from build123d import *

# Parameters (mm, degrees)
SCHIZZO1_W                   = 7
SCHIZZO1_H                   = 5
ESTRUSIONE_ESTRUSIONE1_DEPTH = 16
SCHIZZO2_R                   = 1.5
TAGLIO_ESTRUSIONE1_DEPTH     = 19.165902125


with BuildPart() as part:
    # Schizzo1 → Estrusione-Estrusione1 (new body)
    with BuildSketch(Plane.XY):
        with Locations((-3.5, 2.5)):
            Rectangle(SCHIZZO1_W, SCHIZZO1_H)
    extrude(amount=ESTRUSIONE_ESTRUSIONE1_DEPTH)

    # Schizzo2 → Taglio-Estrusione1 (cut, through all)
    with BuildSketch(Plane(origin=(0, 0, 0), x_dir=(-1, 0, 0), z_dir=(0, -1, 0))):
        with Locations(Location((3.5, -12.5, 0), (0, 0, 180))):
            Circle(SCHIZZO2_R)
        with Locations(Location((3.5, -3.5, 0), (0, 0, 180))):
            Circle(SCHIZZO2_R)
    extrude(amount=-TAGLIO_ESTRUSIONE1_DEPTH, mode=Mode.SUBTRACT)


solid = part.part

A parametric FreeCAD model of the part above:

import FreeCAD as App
import Part
import Sketcher
Q = App.Units.Quantity

doc = App.newDocument("Part")
body = doc.addObject("PartDesign::Body", "Body")

# Sketch on XY plane
sketch1 = body.newObject("Sketcher::SketchObject", "Sketch")
sketch1.AttachmentSupport = (doc.getObject("XY_Plane"), [""])
sketch1.MapMode = "FlatFace"
sketch1.addGeometry([
    Part.LineSegment(App.Vector(-7, 5, 0), App.Vector(-7, 0, 0)),
    Part.LineSegment(App.Vector(-7, 0, 0), App.Vector(0, 0, 0)),
    Part.LineSegment(App.Vector(0, 0, 0), App.Vector(0, 5, 0)),
    Part.LineSegment(App.Vector(0, 5, 0), App.Vector(-7, 5, 0)),
], False)
sketch1.addConstraint([
    Sketcher.Constraint("Coincident", 0, 2, 1, 1),
    Sketcher.Constraint("Coincident", 1, 2, 2, 1),
    Sketcher.Constraint("Coincident", 2, 2, 3, 1),
    Sketcher.Constraint("Coincident", 3, 2, 0, 1),
    Sketcher.Constraint("Vertical", 0),
    Sketcher.Constraint("Horizontal", 1),
    Sketcher.Constraint("Vertical", 2),
    Sketcher.Constraint("Horizontal", 3),
    Sketcher.Constraint("Coincident", 1, 2, -1, 1),
    Sketcher.Constraint("DistanceX", 1, 1, 1, 2, Q("7 mm")),
    Sketcher.Constraint("DistanceY", 0, 2, 0, 1, Q("5 mm")),
])
pad1 = body.newObject("PartDesign::Pad", "Pad")
pad1.Profile = sketch1
pad1.Length = 16

# Sketch on XZ plane
sketch2 = body.newObject("Sketcher::SketchObject", "Sketch001")
sketch2.AttachmentSupport = (doc.getObject("XZ_Plane"), [""])
sketch2.MapMode = "FlatFace"
sketch2.addGeometry([
    Part.Circle(App.Vector(-3.5, 12.5, 0), App.Vector(0, 0, 1), 1.5),
    Part.Circle(App.Vector(-3.5, 3.5, 0), App.Vector(0, 0, 1), 1.5),
], False)
sketch2.addConstraint([
    Sketcher.Constraint("Equal", 0, 1),
    Sketcher.Constraint("Vertical", 0, 3, 1, 3),
    Sketcher.Constraint("Diameter", 0, Q("3 mm")),
    Sketcher.Constraint("DistanceY", 1, 3, 0, 3, Q("9 mm")),
    Sketcher.Constraint("DistanceX", 0, 3, -1, 1, Q("3.5 mm")),
    Sketcher.Constraint("DistanceY", -1, 1, 0, 3, Q("12.5 mm")),
])
pocket1 = body.newObject("PartDesign::Pocket", "Pocket")
pocket1.Profile = sketch2
pocket1.Type = "ThroughAll"

doc.recompute()
